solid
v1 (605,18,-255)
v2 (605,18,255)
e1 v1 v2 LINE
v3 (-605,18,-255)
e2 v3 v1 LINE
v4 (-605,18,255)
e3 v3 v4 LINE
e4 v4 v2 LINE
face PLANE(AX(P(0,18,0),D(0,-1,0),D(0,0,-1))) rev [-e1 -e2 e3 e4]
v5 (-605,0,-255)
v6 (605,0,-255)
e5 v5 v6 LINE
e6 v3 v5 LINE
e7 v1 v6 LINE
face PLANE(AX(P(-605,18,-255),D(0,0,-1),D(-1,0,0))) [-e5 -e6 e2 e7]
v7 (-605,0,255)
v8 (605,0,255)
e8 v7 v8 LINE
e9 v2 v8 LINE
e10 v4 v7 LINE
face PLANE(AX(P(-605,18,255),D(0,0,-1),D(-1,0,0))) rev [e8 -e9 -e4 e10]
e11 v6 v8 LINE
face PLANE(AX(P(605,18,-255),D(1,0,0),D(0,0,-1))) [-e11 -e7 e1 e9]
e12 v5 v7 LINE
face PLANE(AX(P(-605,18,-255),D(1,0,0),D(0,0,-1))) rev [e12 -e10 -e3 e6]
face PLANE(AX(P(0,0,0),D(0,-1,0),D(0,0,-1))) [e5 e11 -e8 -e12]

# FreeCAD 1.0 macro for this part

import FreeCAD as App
import Part
import Sketcher
from FreeCAD import Vector


def add_polygon(sketch, points):
    """Adds a closed chain of lines whose ends are joined by coincident constraints."""
    first, n = sketch.GeometryCount, len(points)
    for a, b in zip(points, points[1:] + points[:1]):
        sketch.addGeometry(Part.LineSegment(App.Vector(*a, 0), App.Vector(*b, 0)), False)
    for i in range(n):
        sketch.addConstraint(Sketcher.Constraint("Coincident", first + i, 2, first + (i + 1) % n, 1))

doc = App.newDocument("Part")
body = doc.addObject("PartDesign::Body", "Body")

sketch1 = doc.addObject("Sketcher::SketchObject", "Sketch")
body.addObject(sketch1)
sketch1.AttachmentSupport = (doc.XZ_Plane, [""])
sketch1.MapMode = "FlatFace"
add_polygon(sketch1, [(-605, -255), (-605, 255), (605, 255), (605, -255)])
sketch1.addConstraint(Sketcher.Constraint("Vertical", 0))
sketch1.addConstraint(Sketcher.Constraint("Horizontal", 1))
sketch1.addConstraint(Sketcher.Constraint("Vertical", 2))
sketch1.addConstraint(Sketcher.Constraint("Horizontal", 3))
sketch1.addConstraint(Sketcher.Constraint("Symmetric", 0, 2, 2, 2, -1, 1))
sketch1.addConstraint(Sketcher.Constraint("DistanceX", 1, 1, 1, 2, 1210.0))
sketch1.addConstraint(Sketcher.Constraint("DistanceY", 0, 1, 0, 2, 510.0))
pad1 = doc.addObject("PartDesign::Pad", "Pad")
body.addObject(pad1)
pad1.Profile = sketch1
pad1.Length = 18
pad1.Reversed = True

doc.recompute()
